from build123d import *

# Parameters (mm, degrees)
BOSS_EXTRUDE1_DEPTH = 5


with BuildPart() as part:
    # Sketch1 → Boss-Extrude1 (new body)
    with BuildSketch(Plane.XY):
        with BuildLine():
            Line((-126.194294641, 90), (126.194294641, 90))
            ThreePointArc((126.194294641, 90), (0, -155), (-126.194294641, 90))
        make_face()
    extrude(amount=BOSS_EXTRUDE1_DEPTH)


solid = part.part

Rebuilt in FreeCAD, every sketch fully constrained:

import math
import FreeCAD as App
import Part
import Sketcher

doc = App.newDocument("Part")
params = doc.addObject("Spreadsheet::Sheet", "Params")
for row, (alias, value) in enumerate([
    ("sketch1_radius", "155 mm"),
    ("pad1_length", "5 mm"),
], start=1):
    params.set(f"A{row}", alias)
    params.set(f"B{row}", "=" + value)
    params.setAlias(f"B{row}", alias)

body = doc.addObject("PartDesign::Body", "Body")

# Sketch on XY plane
sketch1 = body.newObject("Sketcher::SketchObject", "Sketch")
sketch1.AttachmentSupport = (doc.getObject("XY_Plane"), [""])
sketch1.MapMode = "FlatFace"
sketch1.addGeometry(Part.LineSegment(App.Vector(126, 90, 0), App.Vector(-126, 90, 0)), False)
sketch1.addGeometry(Part.ArcOfCircle(Part.Circle(App.Vector(0, 0, 0), App.Vector(0, 0, 1), 155), math.radians(145), math.radians(395)), False)
sketch1.addConstraint(Sketcher.Constraint("Coincident", 0, 1, 1, 2))
sketch1.addConstraint(Sketcher.Constraint("Coincident", 1, 1, 0, 2))
sketch1.addConstraint(Sketcher.Constraint("Horizontal", 0))
sketch1.addConstraint(Sketcher.Constraint("Coincident", 1, 3, -1, 1))
sketch1.addConstraint(Sketcher.Constraint("Radius", 1, 155.0))
sketch1.addConstraint(Sketcher.Constraint("DistanceY", -1, 1, 0, 1, 90.0))
sketch1.setExpression("Constraints[4]", "Params.sketch1_radius")
pad1 = body.newObject("PartDesign::Pad", "Pad")
pad1.Profile = sketch1
pad1.setExpression("Length", "Params.pad1_length")

doc.recompute()
